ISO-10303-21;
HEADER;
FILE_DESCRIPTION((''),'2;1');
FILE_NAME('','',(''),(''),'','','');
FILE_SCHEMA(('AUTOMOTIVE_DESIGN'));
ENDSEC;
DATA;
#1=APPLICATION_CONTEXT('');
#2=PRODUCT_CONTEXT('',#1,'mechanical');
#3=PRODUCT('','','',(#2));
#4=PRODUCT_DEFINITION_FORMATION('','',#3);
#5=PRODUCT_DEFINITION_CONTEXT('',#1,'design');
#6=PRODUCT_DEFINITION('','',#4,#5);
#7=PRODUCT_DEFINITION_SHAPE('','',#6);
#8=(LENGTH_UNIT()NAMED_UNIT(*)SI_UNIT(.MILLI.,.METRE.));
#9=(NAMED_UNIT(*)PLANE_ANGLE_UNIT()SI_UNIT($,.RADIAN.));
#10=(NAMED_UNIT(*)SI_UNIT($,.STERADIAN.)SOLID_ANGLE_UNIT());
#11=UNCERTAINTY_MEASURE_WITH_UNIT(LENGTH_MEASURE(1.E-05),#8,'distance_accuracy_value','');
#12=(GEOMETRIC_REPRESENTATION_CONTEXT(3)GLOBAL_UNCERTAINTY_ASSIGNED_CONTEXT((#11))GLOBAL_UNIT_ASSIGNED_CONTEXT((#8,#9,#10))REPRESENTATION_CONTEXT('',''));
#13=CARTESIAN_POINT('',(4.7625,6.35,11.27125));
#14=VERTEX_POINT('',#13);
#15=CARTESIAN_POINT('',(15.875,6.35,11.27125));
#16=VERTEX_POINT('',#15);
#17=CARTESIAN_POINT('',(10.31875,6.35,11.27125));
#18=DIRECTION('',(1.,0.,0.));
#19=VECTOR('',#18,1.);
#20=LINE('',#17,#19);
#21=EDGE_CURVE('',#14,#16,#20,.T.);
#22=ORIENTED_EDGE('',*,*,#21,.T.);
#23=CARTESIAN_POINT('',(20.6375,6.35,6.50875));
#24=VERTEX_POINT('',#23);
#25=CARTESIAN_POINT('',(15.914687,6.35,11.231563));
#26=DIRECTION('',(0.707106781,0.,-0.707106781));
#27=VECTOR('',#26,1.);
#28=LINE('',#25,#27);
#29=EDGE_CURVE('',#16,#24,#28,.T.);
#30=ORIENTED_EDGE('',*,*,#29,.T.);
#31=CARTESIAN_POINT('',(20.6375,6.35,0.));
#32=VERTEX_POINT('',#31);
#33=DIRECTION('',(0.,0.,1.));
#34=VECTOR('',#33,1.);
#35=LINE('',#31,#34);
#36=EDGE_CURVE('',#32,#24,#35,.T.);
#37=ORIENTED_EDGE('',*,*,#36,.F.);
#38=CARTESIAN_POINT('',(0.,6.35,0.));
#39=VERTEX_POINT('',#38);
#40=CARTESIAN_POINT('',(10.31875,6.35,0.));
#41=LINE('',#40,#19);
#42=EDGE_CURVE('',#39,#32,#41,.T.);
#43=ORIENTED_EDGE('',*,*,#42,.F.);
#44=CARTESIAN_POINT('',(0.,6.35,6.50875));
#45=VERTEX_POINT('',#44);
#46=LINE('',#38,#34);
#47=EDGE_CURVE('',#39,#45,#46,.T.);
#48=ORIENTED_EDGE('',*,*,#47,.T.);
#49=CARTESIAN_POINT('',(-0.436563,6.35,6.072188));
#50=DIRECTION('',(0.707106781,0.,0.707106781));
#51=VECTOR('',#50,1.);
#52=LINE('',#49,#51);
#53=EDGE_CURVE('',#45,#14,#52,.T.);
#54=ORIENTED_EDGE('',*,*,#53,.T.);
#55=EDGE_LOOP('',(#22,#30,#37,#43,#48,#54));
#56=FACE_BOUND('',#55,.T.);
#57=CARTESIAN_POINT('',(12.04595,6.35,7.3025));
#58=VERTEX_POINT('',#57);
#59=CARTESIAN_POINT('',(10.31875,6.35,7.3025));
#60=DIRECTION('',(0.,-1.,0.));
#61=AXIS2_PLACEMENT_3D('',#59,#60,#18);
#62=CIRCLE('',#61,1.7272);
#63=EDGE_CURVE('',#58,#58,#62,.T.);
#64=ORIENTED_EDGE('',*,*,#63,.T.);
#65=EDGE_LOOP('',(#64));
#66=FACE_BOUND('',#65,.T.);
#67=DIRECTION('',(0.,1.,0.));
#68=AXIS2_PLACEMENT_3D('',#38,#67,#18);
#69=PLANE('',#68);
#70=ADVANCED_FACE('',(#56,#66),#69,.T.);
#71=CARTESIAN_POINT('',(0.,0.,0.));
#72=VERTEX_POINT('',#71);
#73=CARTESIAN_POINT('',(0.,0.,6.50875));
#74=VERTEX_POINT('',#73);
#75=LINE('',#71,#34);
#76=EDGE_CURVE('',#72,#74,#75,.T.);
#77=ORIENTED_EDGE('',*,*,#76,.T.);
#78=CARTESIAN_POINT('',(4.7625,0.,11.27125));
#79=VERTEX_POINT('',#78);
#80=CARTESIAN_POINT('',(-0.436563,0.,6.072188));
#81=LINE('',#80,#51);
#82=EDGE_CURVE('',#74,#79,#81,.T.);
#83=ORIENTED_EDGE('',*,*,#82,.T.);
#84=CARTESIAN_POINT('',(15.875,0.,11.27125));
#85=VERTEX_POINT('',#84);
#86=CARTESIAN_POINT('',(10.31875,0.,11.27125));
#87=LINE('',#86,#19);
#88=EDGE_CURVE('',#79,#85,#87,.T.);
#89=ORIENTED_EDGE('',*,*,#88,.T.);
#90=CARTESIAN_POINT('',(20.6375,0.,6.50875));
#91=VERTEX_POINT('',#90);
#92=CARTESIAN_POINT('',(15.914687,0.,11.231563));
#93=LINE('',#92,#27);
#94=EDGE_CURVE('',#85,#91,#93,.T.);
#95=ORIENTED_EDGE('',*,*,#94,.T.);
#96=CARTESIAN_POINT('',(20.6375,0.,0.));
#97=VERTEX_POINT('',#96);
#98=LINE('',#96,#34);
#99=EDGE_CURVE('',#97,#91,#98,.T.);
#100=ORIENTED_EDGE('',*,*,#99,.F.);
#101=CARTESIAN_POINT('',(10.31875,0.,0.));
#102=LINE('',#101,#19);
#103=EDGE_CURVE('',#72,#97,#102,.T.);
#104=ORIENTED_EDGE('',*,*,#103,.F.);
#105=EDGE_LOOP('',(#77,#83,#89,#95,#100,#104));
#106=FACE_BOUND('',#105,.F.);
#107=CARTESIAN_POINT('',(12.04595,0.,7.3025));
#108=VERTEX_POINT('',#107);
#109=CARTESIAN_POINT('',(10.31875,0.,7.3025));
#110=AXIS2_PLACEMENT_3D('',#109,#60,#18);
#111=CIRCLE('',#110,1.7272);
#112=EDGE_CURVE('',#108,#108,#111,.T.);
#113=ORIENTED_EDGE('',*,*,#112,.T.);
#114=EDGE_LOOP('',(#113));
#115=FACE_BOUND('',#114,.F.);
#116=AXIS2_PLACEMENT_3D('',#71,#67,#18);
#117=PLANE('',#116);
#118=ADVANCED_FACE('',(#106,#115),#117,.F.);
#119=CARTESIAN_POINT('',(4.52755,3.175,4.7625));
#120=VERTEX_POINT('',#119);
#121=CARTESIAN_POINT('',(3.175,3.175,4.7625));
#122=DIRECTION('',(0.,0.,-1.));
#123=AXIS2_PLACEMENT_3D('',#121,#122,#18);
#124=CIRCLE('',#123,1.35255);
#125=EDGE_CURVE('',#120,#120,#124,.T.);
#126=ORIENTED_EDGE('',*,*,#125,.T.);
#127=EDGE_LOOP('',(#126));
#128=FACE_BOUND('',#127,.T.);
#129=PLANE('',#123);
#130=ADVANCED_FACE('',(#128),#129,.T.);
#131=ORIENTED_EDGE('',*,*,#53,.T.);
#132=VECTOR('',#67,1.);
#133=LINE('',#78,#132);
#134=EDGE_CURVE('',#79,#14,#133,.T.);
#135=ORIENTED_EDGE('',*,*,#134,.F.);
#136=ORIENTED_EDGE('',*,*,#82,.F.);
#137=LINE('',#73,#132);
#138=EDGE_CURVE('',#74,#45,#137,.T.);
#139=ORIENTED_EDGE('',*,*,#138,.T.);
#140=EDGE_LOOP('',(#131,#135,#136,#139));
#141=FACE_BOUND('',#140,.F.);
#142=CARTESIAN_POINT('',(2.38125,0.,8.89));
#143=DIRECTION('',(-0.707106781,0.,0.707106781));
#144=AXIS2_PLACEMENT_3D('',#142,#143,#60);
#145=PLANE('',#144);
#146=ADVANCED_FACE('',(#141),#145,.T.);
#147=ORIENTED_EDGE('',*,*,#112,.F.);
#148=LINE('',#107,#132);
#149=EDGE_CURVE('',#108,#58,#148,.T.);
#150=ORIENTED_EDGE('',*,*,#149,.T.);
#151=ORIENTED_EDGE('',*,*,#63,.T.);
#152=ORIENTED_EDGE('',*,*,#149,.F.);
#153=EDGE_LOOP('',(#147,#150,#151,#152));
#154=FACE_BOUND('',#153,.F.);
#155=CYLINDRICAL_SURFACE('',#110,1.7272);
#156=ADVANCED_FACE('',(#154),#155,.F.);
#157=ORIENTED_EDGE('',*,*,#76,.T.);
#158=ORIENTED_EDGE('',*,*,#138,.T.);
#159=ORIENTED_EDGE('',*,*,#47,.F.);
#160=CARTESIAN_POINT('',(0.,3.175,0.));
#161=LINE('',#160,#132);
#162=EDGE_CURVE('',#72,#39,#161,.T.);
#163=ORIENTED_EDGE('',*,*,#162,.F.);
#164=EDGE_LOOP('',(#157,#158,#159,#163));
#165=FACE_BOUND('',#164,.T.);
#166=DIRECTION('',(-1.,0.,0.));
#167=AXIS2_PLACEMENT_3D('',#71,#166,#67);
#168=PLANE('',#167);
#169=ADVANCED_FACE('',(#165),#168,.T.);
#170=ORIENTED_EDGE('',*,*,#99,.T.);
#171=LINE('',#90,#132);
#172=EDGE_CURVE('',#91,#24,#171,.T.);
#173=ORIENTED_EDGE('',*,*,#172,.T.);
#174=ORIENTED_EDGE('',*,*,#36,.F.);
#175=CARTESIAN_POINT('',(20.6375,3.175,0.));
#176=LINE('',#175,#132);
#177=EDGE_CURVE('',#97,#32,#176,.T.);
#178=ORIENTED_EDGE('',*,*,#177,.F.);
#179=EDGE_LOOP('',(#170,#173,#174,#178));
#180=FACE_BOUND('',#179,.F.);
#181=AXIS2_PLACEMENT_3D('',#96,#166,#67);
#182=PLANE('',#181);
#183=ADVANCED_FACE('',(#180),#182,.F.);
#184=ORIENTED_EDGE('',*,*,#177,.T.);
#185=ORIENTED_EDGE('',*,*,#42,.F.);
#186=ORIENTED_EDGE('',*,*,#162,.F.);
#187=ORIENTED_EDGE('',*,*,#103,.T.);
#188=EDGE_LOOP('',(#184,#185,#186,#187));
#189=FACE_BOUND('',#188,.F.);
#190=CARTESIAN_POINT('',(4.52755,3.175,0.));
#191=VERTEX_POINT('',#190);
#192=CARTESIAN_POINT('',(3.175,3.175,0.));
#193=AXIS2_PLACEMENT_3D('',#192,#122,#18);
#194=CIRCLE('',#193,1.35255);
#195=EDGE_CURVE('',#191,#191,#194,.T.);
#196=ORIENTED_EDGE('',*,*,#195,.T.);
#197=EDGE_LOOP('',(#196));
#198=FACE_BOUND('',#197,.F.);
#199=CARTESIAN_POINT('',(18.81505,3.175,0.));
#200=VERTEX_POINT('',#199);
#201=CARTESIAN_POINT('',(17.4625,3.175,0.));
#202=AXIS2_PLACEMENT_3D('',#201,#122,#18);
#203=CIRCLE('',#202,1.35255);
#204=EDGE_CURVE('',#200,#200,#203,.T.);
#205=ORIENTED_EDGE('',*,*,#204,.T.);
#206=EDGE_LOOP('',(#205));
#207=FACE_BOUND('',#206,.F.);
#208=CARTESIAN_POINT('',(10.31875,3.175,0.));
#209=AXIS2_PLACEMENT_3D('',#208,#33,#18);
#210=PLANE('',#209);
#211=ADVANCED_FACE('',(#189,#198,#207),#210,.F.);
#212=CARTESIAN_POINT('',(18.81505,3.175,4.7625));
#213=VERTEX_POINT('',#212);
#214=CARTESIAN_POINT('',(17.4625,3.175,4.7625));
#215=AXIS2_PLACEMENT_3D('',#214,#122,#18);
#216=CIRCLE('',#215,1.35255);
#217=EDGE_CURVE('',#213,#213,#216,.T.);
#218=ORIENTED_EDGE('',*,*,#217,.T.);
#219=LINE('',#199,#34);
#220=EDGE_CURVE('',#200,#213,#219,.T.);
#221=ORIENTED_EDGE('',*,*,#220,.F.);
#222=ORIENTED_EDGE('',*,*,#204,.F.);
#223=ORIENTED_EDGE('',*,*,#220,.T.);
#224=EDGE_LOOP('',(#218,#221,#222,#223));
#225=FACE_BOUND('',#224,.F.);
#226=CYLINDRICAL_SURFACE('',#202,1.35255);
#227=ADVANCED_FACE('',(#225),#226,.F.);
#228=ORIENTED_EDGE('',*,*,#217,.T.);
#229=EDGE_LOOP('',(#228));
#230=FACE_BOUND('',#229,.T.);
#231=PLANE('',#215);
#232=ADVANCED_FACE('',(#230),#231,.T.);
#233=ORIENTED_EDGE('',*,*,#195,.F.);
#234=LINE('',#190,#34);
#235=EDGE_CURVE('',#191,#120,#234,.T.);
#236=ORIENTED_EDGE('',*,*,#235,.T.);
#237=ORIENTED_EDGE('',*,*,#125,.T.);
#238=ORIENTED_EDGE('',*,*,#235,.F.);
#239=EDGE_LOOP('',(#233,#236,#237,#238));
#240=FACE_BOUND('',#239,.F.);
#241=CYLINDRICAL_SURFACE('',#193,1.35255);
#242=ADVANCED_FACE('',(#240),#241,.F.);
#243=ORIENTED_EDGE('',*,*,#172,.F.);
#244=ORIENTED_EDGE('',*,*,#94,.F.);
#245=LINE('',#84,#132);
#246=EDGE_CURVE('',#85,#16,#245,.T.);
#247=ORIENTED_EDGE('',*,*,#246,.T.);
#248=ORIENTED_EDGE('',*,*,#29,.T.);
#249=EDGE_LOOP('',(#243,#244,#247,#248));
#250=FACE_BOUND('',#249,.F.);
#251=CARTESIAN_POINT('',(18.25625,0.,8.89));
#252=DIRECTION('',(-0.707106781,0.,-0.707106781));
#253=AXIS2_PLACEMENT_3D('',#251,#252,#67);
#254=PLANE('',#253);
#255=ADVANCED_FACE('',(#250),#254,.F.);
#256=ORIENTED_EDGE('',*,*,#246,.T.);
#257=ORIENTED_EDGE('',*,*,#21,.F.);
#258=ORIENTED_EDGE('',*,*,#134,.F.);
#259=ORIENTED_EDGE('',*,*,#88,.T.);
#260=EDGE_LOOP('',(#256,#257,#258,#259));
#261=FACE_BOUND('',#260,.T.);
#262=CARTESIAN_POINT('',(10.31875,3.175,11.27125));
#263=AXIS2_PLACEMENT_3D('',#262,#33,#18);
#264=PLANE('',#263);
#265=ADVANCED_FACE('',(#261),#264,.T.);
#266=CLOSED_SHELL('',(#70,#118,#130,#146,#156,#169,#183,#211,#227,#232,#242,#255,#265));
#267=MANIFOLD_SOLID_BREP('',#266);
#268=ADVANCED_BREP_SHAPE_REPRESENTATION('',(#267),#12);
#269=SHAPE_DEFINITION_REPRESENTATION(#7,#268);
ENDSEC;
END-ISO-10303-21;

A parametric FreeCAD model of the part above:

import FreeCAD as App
import Part
import Sketcher
Q = App.Units.Quantity


def edges_at(feature, points):
    """Names of the edges that pass closest to the given points."""
    edges = feature.Shape.Edges
    near = lambda p: min(range(len(edges)), key=lambda i: edges[i].distToShape(Part.Vertex(*p))[0])
    return sorted({f"Edge{near(p) + 1}" for p in points})


def add_polygon(sketch, points):
    """Adds a closed chain of lines whose ends are joined by coincident constraints."""
    first, n = sketch.GeometryCount, len(points)
    for a, b in zip(points, points[1:] + points[:1]):
        sketch.addGeometry(Part.LineSegment(App.Vector(*a, 0), App.Vector(*b, 0)), False)
    for i in range(n):
        sketch.addConstraint(Sketcher.Constraint("Coincident", first + i, 2, first + (i + 1) % n, 1))

doc = App.newDocument("Part")
body = doc.addObject("PartDesign::Body", "Body")

sketch1 = body.newObject("Sketcher::SketchObject", "Sketch")
sketch1.AttachmentSupport = (doc.getObject("XY_Plane"), [""])
sketch1.MapMode = "FlatFace"
add_polygon(sketch1, [(0, 6), (0, 0), (21, 0), (21, 6)])
sketch1.addConstraint(Sketcher.Constraint("Vertical", 0))
sketch1.addConstraint(Sketcher.Constraint("Horizontal", 1))
sketch1.addConstraint(Sketcher.Constraint("Vertical", 2))
sketch1.addConstraint(Sketcher.Constraint("Horizontal", 3))
sketch1.addConstraint(Sketcher.Constraint("Coincident", 0, 2, -1, 1))
sketch1.addConstraint(Sketcher.Constraint("DistanceY", 0, 2, 0, 1, Q("0.25 in")))
sketch1.addConstraint(Sketcher.Constraint("DistanceX", 1, 1, 1, 2, Q("0.8125 in")))
pad1 = body.newObject("PartDesign::Pad", "Pad")
pad1.Profile = sketch1
pad1.Length = 11.27125

sketch2 = body.newObject("Sketcher::SketchObject", "Sketch001")
sketch2.AttachmentSupport = (doc.getObject("XZ_Plane"), [""])
sketch2.MapMode = "FlatFace"
sketch2.addGeometry(Part.Circle(App.Vector(10.3, 7.3, 0), App.Vector(0, 0, 1), 1.7), False)
sketch2.addConstraint(Sketcher.Constraint("Diameter", 0, Q("0.136 in")))
sketch2.addConstraint(Sketcher.Constraint("DistanceX", -1, 1, 0, 3, Q("0.40625 in")))
sketch2.addConstraint(Sketcher.Constraint("DistanceY", -1, 1, 0, 3, Q("0.2875 in")))
pocket1 = body.newObject("PartDesign::Pocket", "Pocket")
pocket1.Profile = sketch2
pocket1.Type = "ThroughAll"

sketch3 = body.newObject("Sketcher::SketchObject", "Sketch002")
sketch3.AttachmentSupport = (doc.getObject("XY_Plane"), [""])
sketch3.MapMode = "FlatFace"
sketch3.addGeometry(Part.Circle(App.Vector(3.2, 3.2, 0), App.Vector(0, 0, 1), 1.4), False)
sketch3.addGeometry(Part.Circle(App.Vector(17.5, 3.2, 0), App.Vector(0, 0, 1), 1.4), False)
sketch3.addConstraint(Sketcher.Constraint("Equal", 0, 1))
sketch3.addConstraint(Sketcher.Constraint("Horizontal", 0, 3, 1, 3))
sketch3.addConstraint(Sketcher.Constraint("Diameter", 0, Q("0.1065 in")))
sketch3.addConstraint(Sketcher.Constraint("DistanceX", -1, 1, 0, 3, Q("0.125 in")))
sketch3.addConstraint(Sketcher.Constraint("DistanceY", -1, 1, 0, 3, Q("0.125 in")))
sketch3.addConstraint(Sketcher.Constraint("DistanceX", -1, 1, 1, 3, Q("0.6875 in")))
pocket2 = body.newObject("PartDesign::Pocket", "Pocket001")
pocket2.Profile = sketch3
pocket2.Length = Q("0.1875 in")
pocket2.Reversed = True
doc.recompute()

chamfer = body.newObject("PartDesign::Chamfer", "Chamfer")
chamfer.Base = (pocket2, edges_at(pocket2, [(0, 3.175, 11.271), (20.637, 3.175, 11.271)]))
chamfer.Size = Q("0.1875 in")

doc.recompute()
